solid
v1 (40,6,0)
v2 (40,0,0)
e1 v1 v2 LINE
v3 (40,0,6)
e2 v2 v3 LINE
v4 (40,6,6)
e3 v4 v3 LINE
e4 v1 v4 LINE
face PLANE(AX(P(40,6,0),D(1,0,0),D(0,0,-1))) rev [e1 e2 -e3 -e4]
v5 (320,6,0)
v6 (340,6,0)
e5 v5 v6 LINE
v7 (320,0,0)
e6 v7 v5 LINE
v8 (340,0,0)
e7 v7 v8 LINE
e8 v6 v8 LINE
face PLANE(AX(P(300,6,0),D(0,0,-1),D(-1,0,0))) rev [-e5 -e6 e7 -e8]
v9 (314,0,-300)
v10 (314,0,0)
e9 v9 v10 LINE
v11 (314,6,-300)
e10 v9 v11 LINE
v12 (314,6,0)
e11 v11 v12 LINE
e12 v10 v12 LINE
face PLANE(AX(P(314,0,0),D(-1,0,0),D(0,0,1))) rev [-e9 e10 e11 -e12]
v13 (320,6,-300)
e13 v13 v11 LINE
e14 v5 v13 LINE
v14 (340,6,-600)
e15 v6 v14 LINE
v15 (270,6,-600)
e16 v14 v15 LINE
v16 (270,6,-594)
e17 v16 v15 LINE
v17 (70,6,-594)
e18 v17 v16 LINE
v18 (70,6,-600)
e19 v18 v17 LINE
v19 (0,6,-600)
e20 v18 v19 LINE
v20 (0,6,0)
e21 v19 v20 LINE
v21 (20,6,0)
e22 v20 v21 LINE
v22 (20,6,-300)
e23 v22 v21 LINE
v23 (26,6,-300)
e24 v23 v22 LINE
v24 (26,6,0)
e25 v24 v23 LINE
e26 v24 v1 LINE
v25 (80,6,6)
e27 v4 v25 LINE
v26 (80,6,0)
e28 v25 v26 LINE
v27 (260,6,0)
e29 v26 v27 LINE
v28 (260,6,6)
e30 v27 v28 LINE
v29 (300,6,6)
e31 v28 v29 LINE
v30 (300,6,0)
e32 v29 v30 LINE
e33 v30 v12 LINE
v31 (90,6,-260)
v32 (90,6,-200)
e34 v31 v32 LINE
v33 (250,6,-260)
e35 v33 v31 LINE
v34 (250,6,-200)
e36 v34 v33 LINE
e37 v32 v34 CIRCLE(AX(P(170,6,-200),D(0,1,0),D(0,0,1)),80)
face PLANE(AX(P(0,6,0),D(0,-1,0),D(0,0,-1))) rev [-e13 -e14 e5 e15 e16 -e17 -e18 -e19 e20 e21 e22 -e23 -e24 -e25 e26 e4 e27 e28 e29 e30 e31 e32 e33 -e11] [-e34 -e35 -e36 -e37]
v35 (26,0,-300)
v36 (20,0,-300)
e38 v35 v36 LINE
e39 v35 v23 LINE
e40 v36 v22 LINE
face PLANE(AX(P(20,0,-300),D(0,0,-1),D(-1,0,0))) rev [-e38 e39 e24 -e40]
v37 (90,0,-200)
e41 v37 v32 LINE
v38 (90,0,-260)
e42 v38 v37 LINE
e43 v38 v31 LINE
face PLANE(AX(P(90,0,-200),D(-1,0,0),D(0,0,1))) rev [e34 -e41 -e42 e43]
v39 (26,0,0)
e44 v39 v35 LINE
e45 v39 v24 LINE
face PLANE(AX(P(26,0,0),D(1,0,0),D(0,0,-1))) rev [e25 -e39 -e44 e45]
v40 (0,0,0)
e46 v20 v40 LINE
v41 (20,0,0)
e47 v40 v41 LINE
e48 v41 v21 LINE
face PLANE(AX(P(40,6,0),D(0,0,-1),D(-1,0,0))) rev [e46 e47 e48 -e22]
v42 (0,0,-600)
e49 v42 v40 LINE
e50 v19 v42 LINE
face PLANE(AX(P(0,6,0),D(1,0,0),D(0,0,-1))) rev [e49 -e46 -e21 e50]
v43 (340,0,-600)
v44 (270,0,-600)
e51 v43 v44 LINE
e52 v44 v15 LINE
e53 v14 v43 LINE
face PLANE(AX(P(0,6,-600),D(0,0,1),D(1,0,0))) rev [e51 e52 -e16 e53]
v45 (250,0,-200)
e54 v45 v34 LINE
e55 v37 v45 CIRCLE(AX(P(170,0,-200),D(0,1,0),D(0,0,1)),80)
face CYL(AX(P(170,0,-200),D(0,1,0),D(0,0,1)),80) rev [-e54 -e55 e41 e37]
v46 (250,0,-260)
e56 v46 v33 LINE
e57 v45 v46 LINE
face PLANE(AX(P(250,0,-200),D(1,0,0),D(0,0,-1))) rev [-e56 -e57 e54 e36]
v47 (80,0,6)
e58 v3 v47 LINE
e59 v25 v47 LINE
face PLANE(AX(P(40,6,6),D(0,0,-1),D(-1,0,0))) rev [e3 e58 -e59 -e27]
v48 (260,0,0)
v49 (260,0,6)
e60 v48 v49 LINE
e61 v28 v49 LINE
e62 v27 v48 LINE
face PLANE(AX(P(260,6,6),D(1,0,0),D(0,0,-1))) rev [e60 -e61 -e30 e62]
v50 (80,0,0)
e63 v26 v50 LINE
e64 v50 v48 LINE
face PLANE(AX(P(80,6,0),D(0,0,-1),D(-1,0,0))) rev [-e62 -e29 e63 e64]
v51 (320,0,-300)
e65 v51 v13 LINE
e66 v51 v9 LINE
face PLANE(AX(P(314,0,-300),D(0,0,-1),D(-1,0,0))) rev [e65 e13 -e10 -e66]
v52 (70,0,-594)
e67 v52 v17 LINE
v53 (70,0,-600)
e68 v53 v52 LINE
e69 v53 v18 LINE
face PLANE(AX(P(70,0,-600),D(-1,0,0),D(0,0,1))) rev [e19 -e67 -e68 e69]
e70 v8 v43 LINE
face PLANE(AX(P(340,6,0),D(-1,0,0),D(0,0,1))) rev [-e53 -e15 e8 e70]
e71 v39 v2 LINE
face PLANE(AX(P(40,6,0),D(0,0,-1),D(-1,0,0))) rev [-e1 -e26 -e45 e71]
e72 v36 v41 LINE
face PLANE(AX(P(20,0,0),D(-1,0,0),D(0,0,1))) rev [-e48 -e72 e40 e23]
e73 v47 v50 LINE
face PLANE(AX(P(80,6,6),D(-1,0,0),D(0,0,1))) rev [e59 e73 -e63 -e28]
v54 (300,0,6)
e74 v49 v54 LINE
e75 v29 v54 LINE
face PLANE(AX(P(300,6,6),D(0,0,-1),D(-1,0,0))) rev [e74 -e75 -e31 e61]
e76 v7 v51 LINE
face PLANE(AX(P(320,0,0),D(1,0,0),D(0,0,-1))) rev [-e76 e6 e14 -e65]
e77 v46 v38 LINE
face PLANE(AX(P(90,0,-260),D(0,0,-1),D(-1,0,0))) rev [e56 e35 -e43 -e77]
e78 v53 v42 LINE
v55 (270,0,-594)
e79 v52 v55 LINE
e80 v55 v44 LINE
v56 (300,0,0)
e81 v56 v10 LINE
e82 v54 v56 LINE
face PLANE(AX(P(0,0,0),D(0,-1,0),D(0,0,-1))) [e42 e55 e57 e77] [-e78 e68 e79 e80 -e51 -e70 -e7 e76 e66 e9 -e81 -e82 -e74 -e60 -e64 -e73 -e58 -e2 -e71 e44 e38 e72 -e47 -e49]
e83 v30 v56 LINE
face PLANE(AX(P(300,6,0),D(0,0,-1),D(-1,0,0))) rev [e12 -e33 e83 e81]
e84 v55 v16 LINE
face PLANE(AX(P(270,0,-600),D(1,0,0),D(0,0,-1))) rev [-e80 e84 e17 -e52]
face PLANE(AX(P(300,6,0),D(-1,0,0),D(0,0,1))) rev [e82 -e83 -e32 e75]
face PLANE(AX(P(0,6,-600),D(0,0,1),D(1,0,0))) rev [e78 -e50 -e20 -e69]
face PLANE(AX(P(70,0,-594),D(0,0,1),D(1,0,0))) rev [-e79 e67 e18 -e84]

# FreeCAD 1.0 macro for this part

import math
import FreeCAD as App
import Part
import Sketcher
Q = App.Units.Quantity

doc = App.newDocument("Part")
body = doc.addObject("PartDesign::Body", "Body")

# Sketch on XZ plane
sketch1 = body.newObject("Sketcher::SketchObject", "Sketch")
sketch1.AttachmentSupport = (doc.getObject("XZ_Plane"), [""])
sketch1.MapMode = "FlatFace"
sketch1.addGeometry(Part.LineSegment(App.Vector(300, 6, 0), App.Vector(300, 0, 0)), False)
sketch1.addGeometry(Part.LineSegment(App.Vector(300, 0, 0), App.Vector(340, 0, 0)), False)
sketch1.addGeometry(Part.LineSegment(App.Vector(340, 0, 0), App.Vector(340, -600, 0)), False)
sketch1.addGeometry(Part.LineSegment(App.Vector(340, -600, 0), App.Vector(0, -600, 0)), False)
sketch1.addGeometry(Part.LineSegment(App.Vector(0, -600, 0), App.Vector(0, 0, 0)), False)
sketch1.addGeometry(Part.LineSegment(App.Vector(0, 0, 0), App.Vector(40, 0, 0)), False)
sketch1.addGeometry(Part.LineSegment(App.Vector(40, 0, 0), App.Vector(40, 6, 0)), False)
sketch1.addGeometry(Part.LineSegment(App.Vector(40, 6, 0), App.Vector(80, 6, 0)), False)
sketch1.addGeometry(Part.LineSegment(App.Vector(80, 6, 0), App.Vector(80, 0, 0)), False)
sketch1.addGeometry(Part.LineSegment(App.Vector(80, 0, 0), App.Vector(260, 0, 0)), False)
sketch1.addGeometry(Part.LineSegment(App.Vector(260, 0, 0), App.Vector(260, 6, 0)), False)
sketch1.addGeometry(Part.LineSegment(App.Vector(260, 6, 0), App.Vector(300, 6, 0)), False)
sketch1.addConstraint(Sketcher.Constraint("Coincident", 0, 2, 1, 1))
sketch1.addConstraint(Sketcher.Constraint("Coincident", 1, 2, 2, 1))
sketch1.addConstraint(Sketcher.Constraint("Coincident", 2, 2, 3, 1))
sketch1.addConstraint(Sketcher.Constraint("Coincident", 3, 2, 4, 1))
sketch1.addConstraint(Sketcher.Constraint("Coincident", 4, 2, 5, 1))
sketch1.addConstraint(Sketcher.Constraint("Coincident", 5, 2, 6, 1))
sketch1.addConstraint(Sketcher.Constraint("Coincident", 6, 2, 7, 1))
sketch1.addConstraint(Sketcher.Constraint("Coincident", 7, 2, 8, 1))
sketch1.addConstraint(Sketcher.Constraint("Coincident", 8, 2, 9, 1))
sketch1.addConstraint(Sketcher.Constraint("Coincident", 9, 2, 10, 1))
sketch1.addConstraint(Sketcher.Constraint("Coincident", 10, 2, 11, 1))
sketch1.addConstraint(Sketcher.Constraint("Coincident", 11, 2, 0, 1))
sketch1.addConstraint(Sketcher.Constraint("Vertical", 0))
sketch1.addConstraint(Sketcher.Constraint("Horizontal", 1))
sketch1.addConstraint(Sketcher.Constraint("Vertical", 2))
sketch1.addConstraint(Sketcher.Constraint("Horizontal", 3))
sketch1.addConstraint(Sketcher.Constraint("Vertical", 4))
sketch1.addConstraint(Sketcher.Constraint("Horizontal", 5))
sketch1.addConstraint(Sketcher.Constraint("Vertical", 6))
sketch1.addConstraint(Sketcher.Constraint("Horizontal", 7))
sketch1.addConstraint(Sketcher.Constraint("Vertical", 8))
sketch1.addConstraint(Sketcher.Constraint("Horizontal", 9))
sketch1.addConstraint(Sketcher.Constraint("Vertical", 10))
sketch1.addConstraint(Sketcher.Constraint("Horizontal", 11))
sketch1.addConstraint(Sketcher.Constraint("Coincident", 4, 2, -1, 1))
sketch1.addConstraint(Sketcher.Constraint("PointOnObject", 0, 2, -1))
sketch1.addConstraint(Sketcher.Constraint("PointOnObject", 8, 2, -1))
sketch1.addConstraint(Sketcher.Constraint("Horizontal", 7, 2, 10, 2))
sketch1.addConstraint(Sketcher.Constraint("Equal", 1, 5))
sketch1.addConstraint(Sketcher.Constraint("Equal", 5, 7))
sketch1.addConstraint(Sketcher.Constraint("Equal", 7, 11))
sketch1.addConstraint(Sketcher.Constraint("DistanceX", 1, 1, 1, 2, Q("40 mm")))
sketch1.addConstraint(Sketcher.Constraint("DistanceX", 3, 2, 3, 1, Q("340 mm")))
sketch1.addConstraint(Sketcher.Constraint("DistanceY", 0, 2, 0, 1, Q("6 mm")))
sketch1.addConstraint(Sketcher.Constraint("DistanceY", 2, 2, 2, 1, Q("600 mm")))
pad1 = body.newObject("PartDesign::Pad", "Pad")
pad1.Profile = sketch1
pad1.Length = 6
pad1.Reversed = True

# Sketch on XZ plane
sketch2 = body.newObject("Sketcher::SketchObject", "Sketch001")
sketch2.AttachmentSupport = (doc.getObject("XZ_Plane"), [""])
sketch2.MapMode = "FlatFace"
sketch2.AttachmentOffset = App.Placement(App.Vector(0, 0, -6), App.Rotation())
sketch2.addGeometry(Part.LineSegment(App.Vector(20, -300, 0), App.Vector(20, 0, 0)), False)
sketch2.addGeometry(Part.LineSegment(App.Vector(20, 0, 0), App.Vector(26, 0, 0)), False)
sketch2.addGeometry(Part.LineSegment(App.Vector(26, 0, 0), App.Vector(26, -300, 0)), False)
sketch2.addGeometry(Part.LineSegment(App.Vector(26, -300, 0), App.Vector(20, -300, 0)), False)
sketch2.addConstraint(Sketcher.Constraint("Coincident", 0, 2, 1, 1))
sketch2.addConstraint(Sketcher.Constraint("Coincident", 1, 2, 2, 1))
sketch2.addConstraint(Sketcher.Constraint("Coincident", 2, 2, 3, 1))
sketch2.addConstraint(Sketcher.Constraint("Coincident", 3, 2, 0, 1))
sketch2.addConstraint(Sketcher.Constraint("Vertical", 0))
sketch2.addConstraint(Sketcher.Constraint("Horizontal", 1))
sketch2.addConstraint(Sketcher.Constraint("Vertical", 2))
sketch2.addConstraint(Sketcher.Constraint("Horizontal", 3))
sketch2.addConstraint(Sketcher.Constraint("PointOnObject", 0, 2, -1))
sketch2.addConstraint(Sketcher.Constraint("DistanceX", 1, 1, 1, 2, Q("6 mm")))
sketch2.addConstraint(Sketcher.Constraint("DistanceY", 0, 1, 0, 2, Q("300 mm")))
sketch2.addConstraint(Sketcher.Constraint("DistanceX", -1, 1, 0, 2, Q("20 mm")))
pocket1 = body.newObject("PartDesign::Pocket", "Pocket")
pocket1.Profile = sketch2
pocket1.Length = 6
pocket1.Reversed = True
doc.recompute()

linearpattern = body.newObject("PartDesign::LinearPattern", "LinearPattern")
linearpattern.Originals = [pocket1]
linearpattern.Direction = (doc.getObject("X_Axis"), [""])
linearpattern.Mode = "offset"
linearpattern.Offset = 294
linearpattern.Occurrences = 2
body.Tip = linearpattern

# Sketch on XZ plane
sketch3 = body.newObject("Sketcher::SketchObject", "Sketch002")
sketch3.AttachmentSupport = (doc.getObject("XZ_Plane"), [""])
sketch3.MapMode = "FlatFace"
sketch3.AttachmentOffset = App.Placement(App.Vector(0, 0, -6), App.Rotation())
sketch3.addGeometry(Part.LineSegment(App.Vector(90, -260, 0), App.Vector(90, -200, 0)), False)
sketch3.addGeometry(Part.ArcOfCircle(Part.Circle(App.Vector(170, -200, 0), App.Vector(0, 0, 1), 80), math.radians(0), math.radians(180)), False)
sketch3.addGeometry(Part.LineSegment(App.Vector(250, -200, 0), App.Vector(250, -260, 0)), False)
sketch3.addGeometry(Part.LineSegment(App.Vector(250, -260, 0), App.Vector(90, -260, 0)), False)
sketch3.addGeometry(Part.LineSegment(App.Vector(70, -600, 0), App.Vector(70, -594, 0)), False)
sketch3.addGeometry(Part.LineSegment(App.Vector(70, -594, 0), App.Vector(270, -594, 0)), False)
sketch3.addGeometry(Part.LineSegment(App.Vector(270, -594, 0), App.Vector(270, -600, 0)), False)
sketch3.addGeometry(Part.LineSegment(App.Vector(270, -600, 0), App.Vector(70, -600, 0)), False)
sketch3.addConstraint(Sketcher.Constraint("Tangent", 0, 2, 1, 2))
sketch3.addConstraint(Sketcher.Constraint("Tangent", 1, 1, 2, 1))
sketch3.addConstraint(Sketcher.Constraint("Coincident", 2, 2, 3, 1))
sketch3.addConstraint(Sketcher.Constraint("Coincident", 3, 2, 0, 1))
sketch3.addConstraint(Sketcher.Constraint("Coincident", 4, 2, 5, 1))
sketch3.addConstraint(Sketcher.Constraint("Coincident", 5, 2, 6, 1))
sketch3.addConstraint(Sketcher.Constraint("Coincident", 6, 2, 7, 1))
sketch3.addConstraint(Sketcher.Constraint("Coincident", 7, 2, 4, 1))
sketch3.addConstraint(Sketcher.Constraint("Vertical", 0))
sketch3.addConstraint(Sketcher.Constraint("Vertical", 2))
sketch3.addConstraint(Sketcher.Constraint("Horizontal", 3))
sketch3.addConstraint(Sketcher.Constraint("Vertical", 4))
sketch3.addConstraint(Sketcher.Constraint("Horizontal", 5))
sketch3.addConstraint(Sketcher.Constraint("Vertical", 6))
sketch3.addConstraint(Sketcher.Constraint("Horizontal", 7))
sketch3.addConstraint(Sketcher.Constraint("Radius", 1, Q("80 mm")))
sketch3.addConstraint(Sketcher.Constraint("DistanceX", 5, 1, 5, 2, Q("200 mm")))
sketch3.addConstraint(Sketcher.Constraint("DistanceY", 0, 1, 0, 2, Q("60 mm")))
sketch3.addConstraint(Sketcher.Constraint("DistanceY", 4, 1, 4, 2, Q("6 mm")))
sketch3.addConstraint(Sketcher.Constraint("DistanceX", -1, 1, 1, 3, Q("170 mm")))
sketch3.addConstraint(Sketcher.Constraint("DistanceY", 1, 3, -1, 1, Q("200 mm")))
sketch3.addConstraint(Sketcher.Constraint("DistanceX", -1, 1, 4, 2, Q("70 mm")))
sketch3.addConstraint(Sketcher.Constraint("DistanceY", 4, 2, -1, 1, Q("594 mm")))
pocket2 = body.newObject("PartDesign::Pocket", "Pocket001")
pocket2.Profile = sketch3
pocket2.Length = 6
pocket2.Reversed = True

doc.recompute()
